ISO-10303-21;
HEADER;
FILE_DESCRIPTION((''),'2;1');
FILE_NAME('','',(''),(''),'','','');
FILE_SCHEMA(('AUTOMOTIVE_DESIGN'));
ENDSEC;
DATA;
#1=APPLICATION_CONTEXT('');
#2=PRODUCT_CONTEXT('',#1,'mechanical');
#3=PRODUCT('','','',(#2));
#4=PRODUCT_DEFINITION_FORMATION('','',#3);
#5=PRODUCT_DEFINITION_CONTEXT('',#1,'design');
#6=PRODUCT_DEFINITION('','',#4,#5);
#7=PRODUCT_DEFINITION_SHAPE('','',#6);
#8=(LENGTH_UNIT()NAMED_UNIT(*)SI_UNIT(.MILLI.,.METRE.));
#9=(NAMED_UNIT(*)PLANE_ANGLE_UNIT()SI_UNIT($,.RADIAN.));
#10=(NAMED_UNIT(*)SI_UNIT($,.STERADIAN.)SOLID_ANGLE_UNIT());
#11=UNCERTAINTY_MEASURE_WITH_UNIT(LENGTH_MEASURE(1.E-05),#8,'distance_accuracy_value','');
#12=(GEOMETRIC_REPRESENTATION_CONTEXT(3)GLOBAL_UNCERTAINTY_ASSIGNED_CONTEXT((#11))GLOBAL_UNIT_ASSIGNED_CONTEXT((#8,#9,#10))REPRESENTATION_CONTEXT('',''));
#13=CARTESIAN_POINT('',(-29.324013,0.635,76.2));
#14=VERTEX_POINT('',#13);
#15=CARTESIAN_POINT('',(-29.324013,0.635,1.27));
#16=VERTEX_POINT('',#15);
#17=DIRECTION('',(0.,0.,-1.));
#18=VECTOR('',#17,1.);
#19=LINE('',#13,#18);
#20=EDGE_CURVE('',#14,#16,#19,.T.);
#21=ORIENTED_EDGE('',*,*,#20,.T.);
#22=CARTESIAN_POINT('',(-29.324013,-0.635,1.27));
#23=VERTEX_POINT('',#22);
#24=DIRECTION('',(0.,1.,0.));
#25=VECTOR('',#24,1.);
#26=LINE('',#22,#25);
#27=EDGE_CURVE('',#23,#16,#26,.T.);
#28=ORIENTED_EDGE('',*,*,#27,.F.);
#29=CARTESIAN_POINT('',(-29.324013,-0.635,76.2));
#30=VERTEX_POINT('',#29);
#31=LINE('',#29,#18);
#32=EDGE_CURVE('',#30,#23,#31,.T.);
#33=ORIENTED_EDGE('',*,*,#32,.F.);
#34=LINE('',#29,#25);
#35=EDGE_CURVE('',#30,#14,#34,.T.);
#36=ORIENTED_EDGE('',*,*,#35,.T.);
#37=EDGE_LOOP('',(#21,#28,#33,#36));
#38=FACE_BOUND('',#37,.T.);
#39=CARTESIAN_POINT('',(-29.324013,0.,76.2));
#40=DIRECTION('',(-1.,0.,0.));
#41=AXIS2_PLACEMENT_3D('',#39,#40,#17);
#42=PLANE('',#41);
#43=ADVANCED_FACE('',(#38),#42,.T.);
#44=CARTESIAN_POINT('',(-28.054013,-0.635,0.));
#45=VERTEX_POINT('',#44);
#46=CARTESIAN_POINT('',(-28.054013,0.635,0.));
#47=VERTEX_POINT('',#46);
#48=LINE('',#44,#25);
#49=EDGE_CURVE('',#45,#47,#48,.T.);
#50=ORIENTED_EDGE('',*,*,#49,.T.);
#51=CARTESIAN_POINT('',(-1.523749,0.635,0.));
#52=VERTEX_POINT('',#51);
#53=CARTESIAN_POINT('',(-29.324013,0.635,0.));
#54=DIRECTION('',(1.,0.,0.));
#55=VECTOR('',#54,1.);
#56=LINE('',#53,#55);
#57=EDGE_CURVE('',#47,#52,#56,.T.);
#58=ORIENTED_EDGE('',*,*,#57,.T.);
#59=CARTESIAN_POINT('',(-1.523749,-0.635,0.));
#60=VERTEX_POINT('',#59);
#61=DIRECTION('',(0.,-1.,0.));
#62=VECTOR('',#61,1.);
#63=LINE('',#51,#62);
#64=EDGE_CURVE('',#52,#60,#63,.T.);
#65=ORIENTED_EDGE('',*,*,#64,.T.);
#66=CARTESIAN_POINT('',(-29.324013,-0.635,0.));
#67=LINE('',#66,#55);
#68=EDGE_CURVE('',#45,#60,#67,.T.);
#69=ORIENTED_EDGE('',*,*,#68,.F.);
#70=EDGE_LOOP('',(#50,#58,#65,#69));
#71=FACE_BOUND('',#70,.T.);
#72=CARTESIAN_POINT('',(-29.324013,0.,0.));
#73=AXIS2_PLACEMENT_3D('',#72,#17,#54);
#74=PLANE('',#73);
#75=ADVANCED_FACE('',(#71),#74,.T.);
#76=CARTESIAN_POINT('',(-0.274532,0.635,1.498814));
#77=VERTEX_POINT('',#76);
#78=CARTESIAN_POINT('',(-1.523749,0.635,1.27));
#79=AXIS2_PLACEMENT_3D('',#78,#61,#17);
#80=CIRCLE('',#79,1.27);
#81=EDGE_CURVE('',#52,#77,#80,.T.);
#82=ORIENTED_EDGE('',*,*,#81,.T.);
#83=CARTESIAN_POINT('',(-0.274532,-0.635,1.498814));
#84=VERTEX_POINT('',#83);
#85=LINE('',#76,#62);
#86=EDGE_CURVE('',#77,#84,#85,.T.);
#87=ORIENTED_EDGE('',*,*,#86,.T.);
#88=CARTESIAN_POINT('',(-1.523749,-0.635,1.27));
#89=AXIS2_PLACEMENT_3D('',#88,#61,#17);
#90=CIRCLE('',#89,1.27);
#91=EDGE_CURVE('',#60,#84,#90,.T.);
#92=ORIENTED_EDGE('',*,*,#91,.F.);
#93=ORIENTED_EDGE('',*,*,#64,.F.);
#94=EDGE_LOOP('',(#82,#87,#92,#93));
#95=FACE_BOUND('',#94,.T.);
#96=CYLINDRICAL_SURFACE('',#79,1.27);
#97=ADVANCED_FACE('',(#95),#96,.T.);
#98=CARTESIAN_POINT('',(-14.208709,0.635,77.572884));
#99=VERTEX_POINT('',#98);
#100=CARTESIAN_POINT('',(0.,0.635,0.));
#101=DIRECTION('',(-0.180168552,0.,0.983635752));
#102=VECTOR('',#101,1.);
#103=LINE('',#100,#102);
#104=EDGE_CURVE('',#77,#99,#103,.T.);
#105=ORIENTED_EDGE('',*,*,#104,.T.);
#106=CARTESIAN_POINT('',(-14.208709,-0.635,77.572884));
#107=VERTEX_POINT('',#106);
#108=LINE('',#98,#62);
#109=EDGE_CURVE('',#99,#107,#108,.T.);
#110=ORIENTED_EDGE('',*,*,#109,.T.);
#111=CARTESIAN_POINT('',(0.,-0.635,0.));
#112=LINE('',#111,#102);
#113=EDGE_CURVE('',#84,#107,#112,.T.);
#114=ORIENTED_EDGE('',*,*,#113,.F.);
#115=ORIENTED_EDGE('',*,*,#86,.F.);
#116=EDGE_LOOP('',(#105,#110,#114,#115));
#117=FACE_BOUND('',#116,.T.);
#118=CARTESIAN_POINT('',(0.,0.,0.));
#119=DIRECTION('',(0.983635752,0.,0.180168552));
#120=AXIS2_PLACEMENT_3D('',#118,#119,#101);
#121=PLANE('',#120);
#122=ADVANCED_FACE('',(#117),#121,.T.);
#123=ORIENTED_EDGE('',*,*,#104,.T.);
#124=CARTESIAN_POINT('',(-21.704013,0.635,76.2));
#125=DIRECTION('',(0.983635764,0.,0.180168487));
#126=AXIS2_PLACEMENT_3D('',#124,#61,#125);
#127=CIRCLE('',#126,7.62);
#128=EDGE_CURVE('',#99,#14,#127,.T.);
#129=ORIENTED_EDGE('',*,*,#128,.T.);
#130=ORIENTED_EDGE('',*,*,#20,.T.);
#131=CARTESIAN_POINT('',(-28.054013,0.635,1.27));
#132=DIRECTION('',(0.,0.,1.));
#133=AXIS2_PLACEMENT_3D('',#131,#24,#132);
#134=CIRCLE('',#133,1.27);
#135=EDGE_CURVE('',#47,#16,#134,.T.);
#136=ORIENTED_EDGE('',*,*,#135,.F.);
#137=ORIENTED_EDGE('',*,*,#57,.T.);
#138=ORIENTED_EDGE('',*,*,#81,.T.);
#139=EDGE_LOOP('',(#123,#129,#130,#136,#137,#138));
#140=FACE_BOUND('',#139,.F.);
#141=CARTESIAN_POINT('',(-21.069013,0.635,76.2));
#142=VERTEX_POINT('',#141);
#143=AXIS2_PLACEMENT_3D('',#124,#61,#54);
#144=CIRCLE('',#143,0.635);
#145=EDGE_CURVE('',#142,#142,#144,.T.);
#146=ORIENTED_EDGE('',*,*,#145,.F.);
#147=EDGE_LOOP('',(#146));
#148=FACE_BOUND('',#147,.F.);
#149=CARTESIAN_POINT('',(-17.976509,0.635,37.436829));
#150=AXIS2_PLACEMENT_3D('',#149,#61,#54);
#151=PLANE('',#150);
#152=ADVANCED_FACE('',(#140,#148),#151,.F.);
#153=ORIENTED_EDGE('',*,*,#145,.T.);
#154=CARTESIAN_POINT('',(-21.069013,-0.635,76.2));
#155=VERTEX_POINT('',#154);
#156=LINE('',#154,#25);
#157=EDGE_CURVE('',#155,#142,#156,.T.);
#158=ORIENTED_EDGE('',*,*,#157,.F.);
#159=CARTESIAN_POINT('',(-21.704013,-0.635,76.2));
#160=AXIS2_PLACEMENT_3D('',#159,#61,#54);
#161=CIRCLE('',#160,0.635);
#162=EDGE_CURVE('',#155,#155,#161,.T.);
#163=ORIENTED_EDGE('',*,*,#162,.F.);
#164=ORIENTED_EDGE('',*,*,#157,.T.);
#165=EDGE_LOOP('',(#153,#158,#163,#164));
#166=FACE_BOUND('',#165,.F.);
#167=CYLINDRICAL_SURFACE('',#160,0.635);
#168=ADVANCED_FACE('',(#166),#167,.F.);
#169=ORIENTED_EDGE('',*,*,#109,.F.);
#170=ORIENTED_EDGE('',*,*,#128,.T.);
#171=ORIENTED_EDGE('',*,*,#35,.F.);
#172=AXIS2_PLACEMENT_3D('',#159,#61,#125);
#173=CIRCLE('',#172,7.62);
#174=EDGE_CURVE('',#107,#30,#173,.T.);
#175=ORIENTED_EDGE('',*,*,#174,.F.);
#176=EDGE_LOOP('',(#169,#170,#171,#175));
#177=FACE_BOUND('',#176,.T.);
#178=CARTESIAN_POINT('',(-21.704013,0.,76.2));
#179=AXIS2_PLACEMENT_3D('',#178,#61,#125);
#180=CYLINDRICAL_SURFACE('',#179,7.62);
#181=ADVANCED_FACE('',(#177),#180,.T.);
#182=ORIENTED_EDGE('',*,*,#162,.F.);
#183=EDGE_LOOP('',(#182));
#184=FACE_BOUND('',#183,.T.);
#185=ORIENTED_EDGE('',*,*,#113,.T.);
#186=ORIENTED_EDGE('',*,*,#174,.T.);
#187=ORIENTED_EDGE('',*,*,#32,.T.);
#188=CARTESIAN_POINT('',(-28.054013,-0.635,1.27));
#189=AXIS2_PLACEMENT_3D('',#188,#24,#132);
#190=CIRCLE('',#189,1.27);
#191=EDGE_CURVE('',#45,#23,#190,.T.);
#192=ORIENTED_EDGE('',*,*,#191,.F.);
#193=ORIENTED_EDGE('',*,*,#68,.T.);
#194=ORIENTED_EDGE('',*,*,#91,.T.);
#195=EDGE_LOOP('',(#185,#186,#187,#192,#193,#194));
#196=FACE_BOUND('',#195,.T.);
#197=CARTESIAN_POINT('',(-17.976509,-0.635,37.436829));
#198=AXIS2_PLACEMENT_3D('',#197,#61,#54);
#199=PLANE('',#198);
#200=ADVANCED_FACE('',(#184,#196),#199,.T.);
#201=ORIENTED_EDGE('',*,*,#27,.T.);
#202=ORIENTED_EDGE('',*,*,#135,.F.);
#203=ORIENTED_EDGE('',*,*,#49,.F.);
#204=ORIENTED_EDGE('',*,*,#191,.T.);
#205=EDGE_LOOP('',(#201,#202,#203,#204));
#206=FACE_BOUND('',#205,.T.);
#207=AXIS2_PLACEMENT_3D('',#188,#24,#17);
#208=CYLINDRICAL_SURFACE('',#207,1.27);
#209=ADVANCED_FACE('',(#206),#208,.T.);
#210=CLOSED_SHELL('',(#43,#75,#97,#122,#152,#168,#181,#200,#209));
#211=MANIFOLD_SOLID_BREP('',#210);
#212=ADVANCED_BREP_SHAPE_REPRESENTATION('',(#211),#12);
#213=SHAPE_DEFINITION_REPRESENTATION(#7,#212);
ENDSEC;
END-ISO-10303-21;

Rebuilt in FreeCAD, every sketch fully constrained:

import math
import FreeCAD as App
import Part
import Sketcher
Q = App.Units.Quantity


def edges_at(feature, points):
    """Names of the edges that pass closest to the given points."""
    edges = feature.Shape.Edges
    near = lambda p: min(range(len(edges)), key=lambda i: edges[i].distToShape(Part.Vertex(*p))[0])
    return sorted({f"Edge{near(p) + 1}" for p in points})

doc = App.newDocument("Part")
body = doc.addObject("PartDesign::Body", "Body")

# Sketch on XZ plane
sketch1 = body.newObject("Sketcher::SketchObject", "Sketch")
sketch1.AttachmentSupport = (doc.getObject("XZ_Plane"), [""])
sketch1.MapMode = "FlatFace"
sketch1.addGeometry(Part.LineSegment(App.Vector(-29, 0, 0), App.Vector(0, 0, 0)), False)
sketch1.addGeometry(Part.LineSegment(App.Vector(0, 0, 0), App.Vector(-14, 78, 0)), False)
sketch1.addGeometry(Part.ArcOfCircle(Part.Circle(App.Vector(-22, 76, 0), App.Vector(0, 0, 1), 8), math.radians(10), math.radians(180)), False)
sketch1.addGeometry(Part.LineSegment(App.Vector(-29, 76, 0), App.Vector(-29, 0, 0)), False)
sketch1.addConstraint(Sketcher.Constraint("Coincident", 0, 2, 1, 1))
sketch1.addConstraint(Sketcher.Constraint("Tangent", 1, 2, 2, 1))
sketch1.addConstraint(Sketcher.Constraint("Tangent", 2, 2, 3, 1))
sketch1.addConstraint(Sketcher.Constraint("Coincident", 3, 2, 0, 1))
sketch1.addConstraint(Sketcher.Constraint("Horizontal", 0))
sketch1.addConstraint(Sketcher.Constraint("Vertical", 3))
sketch1.addConstraint(Sketcher.Constraint("Coincident", 0, 2, -1, 1))
sketch1.addConstraint(Sketcher.Constraint("Radius", 2, Q("0.3 in")))
sketch1.addConstraint(Sketcher.Constraint("DistanceY", 3, 2, 3, 1, Q("3 in")))
sketch1.addConstraint(Sketcher.Constraint("DistanceX", 0, 1, 0, 2, 29.324013))
pad1 = body.newObject("PartDesign::Pad", "Pad")
pad1.Profile = sketch1
pad1.Length = Q("0.05 in")
pad1.Midplane = True

# Sketch on XZ plane
sketch2 = body.newObject("Sketcher::SketchObject", "Sketch001")
sketch2.AttachmentSupport = (doc.getObject("XZ_Plane"), [""])
sketch2.MapMode = "FlatFace"
sketch2.AttachmentOffset = App.Placement(App.Vector(0, 0, 0.025 * 25.4), App.Rotation())
sketch2.addGeometry(Part.Circle(App.Vector(-21.7, 76.2, 0), App.Vector(0, 0, 1), 0.6), False)
sketch2.addConstraint(Sketcher.Constraint("Diameter", 0, Q("0.05 in")))
sketch2.addConstraint(Sketcher.Constraint("DistanceY", -1, 1, 0, 3, Q("3 in")))
sketch2.addConstraint(Sketcher.Constraint("DistanceX", 0, 3, -1, 1, 21.704013))
pocket1 = body.newObject("PartDesign::Pocket", "Pocket")
pocket1.Profile = sketch2
pocket1.Type = "ThroughAll"
doc.recompute()

fillet = body.newObject("PartDesign::Fillet", "Fillet")
fillet.Base = (pocket1, edges_at(pocket1, [(-29.324, 0, 0), (0, 0, 0)]))
fillet.Radius = Q("0.05 in")

doc.recompute()
